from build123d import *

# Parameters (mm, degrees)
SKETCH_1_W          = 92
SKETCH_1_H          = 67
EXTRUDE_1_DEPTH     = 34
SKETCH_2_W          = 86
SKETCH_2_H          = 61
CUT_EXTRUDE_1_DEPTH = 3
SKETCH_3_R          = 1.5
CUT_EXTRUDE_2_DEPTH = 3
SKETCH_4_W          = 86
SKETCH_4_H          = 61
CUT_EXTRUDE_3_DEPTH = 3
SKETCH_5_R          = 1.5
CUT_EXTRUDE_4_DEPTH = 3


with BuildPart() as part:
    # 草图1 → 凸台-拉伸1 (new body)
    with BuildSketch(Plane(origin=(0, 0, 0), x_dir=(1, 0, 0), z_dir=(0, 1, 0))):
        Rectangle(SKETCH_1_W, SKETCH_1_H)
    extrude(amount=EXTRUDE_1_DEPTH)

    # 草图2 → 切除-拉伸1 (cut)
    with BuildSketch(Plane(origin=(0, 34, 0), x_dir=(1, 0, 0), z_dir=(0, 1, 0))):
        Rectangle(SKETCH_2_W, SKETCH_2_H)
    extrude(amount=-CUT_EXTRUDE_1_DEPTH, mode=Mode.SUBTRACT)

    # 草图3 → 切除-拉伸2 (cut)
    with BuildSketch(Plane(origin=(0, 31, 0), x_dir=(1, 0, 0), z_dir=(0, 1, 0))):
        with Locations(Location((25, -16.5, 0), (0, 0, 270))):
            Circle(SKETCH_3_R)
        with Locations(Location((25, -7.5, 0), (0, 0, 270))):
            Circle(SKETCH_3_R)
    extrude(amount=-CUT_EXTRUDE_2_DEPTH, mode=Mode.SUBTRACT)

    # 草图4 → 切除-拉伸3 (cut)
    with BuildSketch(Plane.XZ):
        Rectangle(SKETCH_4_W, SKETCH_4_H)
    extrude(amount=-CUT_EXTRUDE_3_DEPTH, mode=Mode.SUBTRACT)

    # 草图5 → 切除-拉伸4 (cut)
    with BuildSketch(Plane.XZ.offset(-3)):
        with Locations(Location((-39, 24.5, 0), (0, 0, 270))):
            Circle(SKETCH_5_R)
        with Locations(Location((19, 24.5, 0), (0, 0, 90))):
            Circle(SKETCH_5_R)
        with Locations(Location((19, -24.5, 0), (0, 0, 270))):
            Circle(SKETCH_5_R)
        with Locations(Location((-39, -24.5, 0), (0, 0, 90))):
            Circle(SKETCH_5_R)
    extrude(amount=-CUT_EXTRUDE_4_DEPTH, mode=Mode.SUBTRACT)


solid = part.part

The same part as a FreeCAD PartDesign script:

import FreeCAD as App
import Part
import Sketcher

V = App.Vector

doc = App.newDocument("Part")
params = doc.addObject("Spreadsheet::Sheet", "Params")
for row, (alias, value) in enumerate([
    ("sketch1_width", "92 mm"),
    ("sketch1_height", "67 mm"),
    ("pad1_length", "34 mm"),
    ("sketch2_width", "86 mm"),
    ("sketch2_height", "61 mm"),
    ("pocket1_length", "3 mm"),
    ("sketch3_diameter", "3 mm"),
    ("pocket2_length", "3 mm"),
    ("sketch4_width", "86 mm"),
    ("sketch4_height", "61 mm"),
    ("pocket3_length", "3 mm"),
    ("sketch5_diameter", "3 mm"),
    ("pocket4_length", "3 mm"),
], start=1):
    params.set(f"A{row}", alias)
    params.set(f"B{row}", "=" + value)
    params.setAlias(f"B{row}", alias)

body = doc.addObject("PartDesign::Body", "Body")

sketch1 = body.newObject("Sketcher::SketchObject", "Sketch")
sketch1.AttachmentSupport = (doc.getObject("XZ_Plane"), [""])
sketch1.MapMode = "FlatFace"
sketch1.addGeometry([
    Part.LineSegment(V(-46, -34, 0), V(-46, 34, 0)),
    Part.LineSegment(V(-46, 34, 0), V(46, 34, 0)),
    Part.LineSegment(V(46, 34, 0), V(46, -34, 0)),
    Part.LineSegment(V(46, -34, 0), V(-46, -34, 0)),
], False)
sketch1.addConstraint([
    Sketcher.Constraint("Coincident", 0, 2, 1, 1),
    Sketcher.Constraint("Coincident", 1, 2, 2, 1),
    Sketcher.Constraint("Coincident", 2, 2, 3, 1),
    Sketcher.Constraint("Coincident", 3, 2, 0, 1),
    Sketcher.Constraint("Vertical", 0),
    Sketcher.Constraint("Horizontal", 1),
    Sketcher.Constraint("Vertical", 2),
    Sketcher.Constraint("Horizontal", 3),
    Sketcher.Constraint("Symmetric", 0, 2, 2, 2, -1, 1),
    Sketcher.Constraint("DistanceX", 1, 1, 1, 2, 92.0),
    Sketcher.Constraint("DistanceY", 0, 1, 0, 2, 67.0),
])
sketch1.setExpression("Constraints[9]", "Params.sketch1_width")
sketch1.setExpression("Constraints[10]", "Params.sketch1_height")
pad1 = body.newObject("PartDesign::Pad", "Pad")
pad1.Profile = sketch1
pad1.setExpression("Length", "Params.pad1_length")
pad1.Reversed = True

sketch2 = body.newObject("Sketcher::SketchObject", "Sketch001")
sketch2.AttachmentSupport = (doc.getObject("XZ_Plane"), [""])
sketch2.MapMode = "FlatFace"
sketch2.AttachmentOffset = App.Placement(V(0, 0, -34), App.Rotation())
sketch2.addGeometry([
    Part.LineSegment(V(-43, -30, 0), V(-43, 30, 0)),
    Part.LineSegment(V(-43, 30, 0), V(43, 30, 0)),
    Part.LineSegment(V(43, 30, 0), V(43, -30, 0)),
    Part.LineSegment(V(43, -30, 0), V(-43, -30, 0)),
], False)
sketch2.addConstraint([
    Sketcher.Constraint("Coincident", 0, 2, 1, 1),
    Sketcher.Constraint("Coincident", 1, 2, 2, 1),
    Sketcher.Constraint("Coincident", 2, 2, 3, 1),
    Sketcher.Constraint("Coincident", 3, 2, 0, 1),
    Sketcher.Constraint("Vertical", 0),
    Sketcher.Constraint("Horizontal", 1),
    Sketcher.Constraint("Vertical", 2),
    Sketcher.Constraint("Horizontal", 3),
    Sketcher.Constraint("Symmetric", 0, 2, 2, 2, -1, 1),
    Sketcher.Constraint("DistanceX", 1, 1, 1, 2, 86.0),
    Sketcher.Constraint("DistanceY", 0, 1, 0, 2, 61.0),
])
sketch2.setExpression("Constraints[9]", "Params.sketch2_width")
sketch2.setExpression("Constraints[10]", "Params.sketch2_height")
pocket1 = body.newObject("PartDesign::Pocket", "Pocket")
pocket1.Profile = sketch2
pocket1.setExpression("Length", "Params.pocket1_length")
pocket1.Reversed = True

sketch3 = body.newObject("Sketcher::SketchObject", "Sketch002")
sketch3.AttachmentSupport = (doc.getObject("XZ_Plane"), [""])
sketch3.MapMode = "FlatFace"
sketch3.AttachmentOffset = App.Placement(V(0, 0, -31), App.Rotation())
sketch3.addGeometry([
    Part.Circle(V(25, 16.5, 0), V(0, 0, 1), 1.5),
    Part.Circle(V(25, 7.5, 0), V(0, 0, 1), 1.5),
], False)
sketch3.addConstraint([
    Sketcher.Constraint("Equal", 0, 1),
    Sketcher.Constraint("Vertical", 0, 3, 1, 3),
    Sketcher.Constraint("Diameter", 0, 3.0),
    Sketcher.Constraint("DistanceX", -1, 1, 0, 3, 25.0),
    Sketcher.Constraint("DistanceY", 1, 3, 0, 3, 9.0),
    Sketcher.Constraint("DistanceY", -1, 1, 0, 3, 16.5),
])
sketch3.setExpression("Constraints[2]", "Params.sketch3_diameter")
pocket2 = body.newObject("PartDesign::Pocket", "Pocket001")
pocket2.Profile = sketch3
pocket2.setExpression("Length", "Params.pocket2_length")
pocket2.Reversed = True

sketch4 = body.newObject("Sketcher::SketchObject", "Sketch003")
sketch4.AttachmentSupport = (doc.getObject("XZ_Plane"), [""])
sketch4.MapMode = "FlatFace"
sketch4.addGeometry([
    Part.LineSegment(V(-43, 30, 0), V(-43, -30, 0)),
    Part.LineSegment(V(-43, -30, 0), V(43, -30, 0)),
    Part.LineSegment(V(43, -30, 0), V(43, 30, 0)),
    Part.LineSegment(V(43, 30, 0), V(-43, 30, 0)),
], False)
sketch4.addConstraint([
    Sketcher.Constraint("Coincident", 0, 2, 1, 1),
    Sketcher.Constraint("Coincident", 1, 2, 2, 1),
    Sketcher.Constraint("Coincident", 2, 2, 3, 1),
    Sketcher.Constraint("Coincident", 3, 2, 0, 1),
    Sketcher.Constraint("Vertical", 0),
    Sketcher.Constraint("Horizontal", 1),
    Sketcher.Constraint("Vertical", 2),
    Sketcher.Constraint("Horizontal", 3),
    Sketcher.Constraint("Symmetric", 0, 2, 2, 2, -1, 1),
    Sketcher.Constraint("DistanceX", 1, 1, 1, 2, 86.0),
    Sketcher.Constraint("DistanceY", 0, 2, 0, 1, 61.0),
])
sketch4.setExpression("Constraints[9]", "Params.sketch4_width")
sketch4.setExpression("Constraints[10]", "Params.sketch4_height")
pocket3 = body.newObject("PartDesign::Pocket", "Pocket002")
pocket3.Profile = sketch4
pocket3.setExpression("Length", "Params.pocket3_length")

sketch5 = body.newObject("Sketcher::SketchObject", "Sketch004")
sketch5.AttachmentSupport = (doc.getObject("XZ_Plane"), [""])
sketch5.MapMode = "FlatFace"
sketch5.AttachmentOffset = App.Placement(V(0, 0, -3), App.Rotation())
sketch5.addGeometry([
    Part.Circle(V(-39, 24.5, 0), V(0, 0, 1), 1.5),
    Part.Circle(V(19, 24.5, 0), V(0, 0, 1), 1.5),
    Part.Circle(V(19, -24.5, 0), V(0, 0, 1), 1.5),
    Part.Circle(V(-39, -24.5, 0), V(0, 0, 1), 1.5),
], False)
sketch5.addConstraint([
    Sketcher.Constraint("Equal", 0, 1),
    Sketcher.Constraint("Equal", 1, 2),
    Sketcher.Constraint("Equal", 2, 3),
    Sketcher.Constraint("Symmetric", 1, 3, 2, 3, -1),
    Sketcher.Constraint("Symmetric", 0, 3, 3, 3, -1),
    Sketcher.Constraint("Horizontal", 0, 3, 1, 3),
    Sketcher.Constraint("Diameter", 0, 3.0),
    Sketcher.Constraint("DistanceX", 0, 3, -1, 1, 39.0),
    Sketcher.Constraint("DistanceX", -1, 1, 1, 3, 19.0),
    Sketcher.Constraint("DistanceY", 2, 3, 1, 3, 49.0),
])
sketch5.setExpression("Constraints[6]", "Params.sketch5_diameter")
pocket4 = body.newObject("PartDesign::Pocket", "Pocket003")
pocket4.Profile = sketch5
pocket4.setExpression("Length", "Params.pocket4_length")

doc.recompute()
